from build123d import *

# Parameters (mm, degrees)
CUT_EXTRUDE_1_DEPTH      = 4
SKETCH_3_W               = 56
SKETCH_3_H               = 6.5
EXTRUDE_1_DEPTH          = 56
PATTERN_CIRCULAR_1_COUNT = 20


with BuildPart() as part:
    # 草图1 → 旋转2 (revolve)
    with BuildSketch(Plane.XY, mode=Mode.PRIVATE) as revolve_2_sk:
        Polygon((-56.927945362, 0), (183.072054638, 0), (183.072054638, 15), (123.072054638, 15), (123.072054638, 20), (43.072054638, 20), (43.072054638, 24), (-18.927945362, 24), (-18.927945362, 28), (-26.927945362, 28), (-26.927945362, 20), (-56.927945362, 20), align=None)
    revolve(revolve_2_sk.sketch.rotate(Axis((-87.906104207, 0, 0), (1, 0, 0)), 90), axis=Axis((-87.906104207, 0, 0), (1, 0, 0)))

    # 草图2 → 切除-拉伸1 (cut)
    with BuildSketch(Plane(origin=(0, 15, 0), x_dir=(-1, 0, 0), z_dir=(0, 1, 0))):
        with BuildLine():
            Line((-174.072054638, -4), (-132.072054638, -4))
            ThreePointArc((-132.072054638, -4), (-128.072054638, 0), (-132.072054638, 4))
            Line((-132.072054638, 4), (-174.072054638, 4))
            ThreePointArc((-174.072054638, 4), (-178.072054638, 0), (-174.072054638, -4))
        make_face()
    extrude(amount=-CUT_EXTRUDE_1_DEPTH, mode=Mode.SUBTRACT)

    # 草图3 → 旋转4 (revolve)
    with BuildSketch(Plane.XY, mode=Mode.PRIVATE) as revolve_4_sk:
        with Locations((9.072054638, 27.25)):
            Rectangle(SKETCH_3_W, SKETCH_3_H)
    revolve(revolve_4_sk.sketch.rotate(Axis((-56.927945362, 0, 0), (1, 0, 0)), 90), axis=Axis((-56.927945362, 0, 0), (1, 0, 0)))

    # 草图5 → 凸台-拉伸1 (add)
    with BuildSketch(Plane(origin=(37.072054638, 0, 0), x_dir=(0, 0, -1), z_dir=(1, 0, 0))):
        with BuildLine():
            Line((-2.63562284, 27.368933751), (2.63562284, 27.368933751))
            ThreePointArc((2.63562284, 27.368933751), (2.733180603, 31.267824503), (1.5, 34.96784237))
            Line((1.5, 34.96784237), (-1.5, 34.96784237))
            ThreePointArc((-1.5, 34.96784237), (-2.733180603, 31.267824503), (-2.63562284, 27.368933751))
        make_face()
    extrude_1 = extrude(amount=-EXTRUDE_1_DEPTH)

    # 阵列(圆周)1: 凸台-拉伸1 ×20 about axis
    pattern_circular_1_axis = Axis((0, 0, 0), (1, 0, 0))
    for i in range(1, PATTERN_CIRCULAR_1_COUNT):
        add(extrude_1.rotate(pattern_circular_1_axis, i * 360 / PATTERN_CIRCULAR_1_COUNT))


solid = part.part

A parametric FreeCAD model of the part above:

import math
import FreeCAD as App
import Part
import Sketcher
from FreeCAD import Vector

doc = App.newDocument("Part")
body = doc.addObject("PartDesign::Body", "Body")

# Sketch on XY plane
sketch1 = body.newObject("Sketcher::SketchObject", "Sketch")
sketch1.AttachmentSupport = (doc.getObject("XY_Plane"), [""])
sketch1.MapMode = "FlatFace"
sketch1.addGeometry(Part.LineSegment(Vector(-56.9, 0, 0), Vector(183.1, 0, 0)), False)
sketch1.addGeometry(Part.LineSegment(Vector(183.1, 0, 0), Vector(183.1, 15, 0)), False)
sketch1.addGeometry(Part.LineSegment(Vector(183.1, 15, 0), Vector(123.1, 15, 0)), False)
sketch1.addGeometry(Part.LineSegment(Vector(123.1, 15, 0), Vector(123.1, 20, 0)), False)
sketch1.addGeometry(Part.LineSegment(Vector(123.1, 20, 0), Vector(43.1, 20, 0)), False)
sketch1.addGeometry(Part.LineSegment(Vector(43.1, 20, 0), Vector(43.1, 24, 0)), False)
sketch1.addGeometry(Part.LineSegment(Vector(43.1, 24, 0), Vector(-18.9, 24, 0)), False)
sketch1.addGeometry(Part.LineSegment(Vector(-18.9, 24, 0), Vector(-18.9, 28, 0)), False)
sketch1.addGeometry(Part.LineSegment(Vector(-18.9, 28, 0), Vector(-26.9, 28, 0)), False)
sketch1.addGeometry(Part.LineSegment(Vector(-26.9, 28, 0), Vector(-26.9, 20, 0)), False)
sketch1.addGeometry(Part.LineSegment(Vector(-26.9, 20, 0), Vector(-56.9, 20, 0)), False)
sketch1.addGeometry(Part.LineSegment(Vector(-56.9, 20, 0), Vector(-56.9, 0, 0)), False)
sketch1.addConstraint(Sketcher.Constraint("Coincident", 0, 2, 1, 1))
sketch1.addConstraint(Sketcher.Constraint("Coincident", 1, 2, 2, 1))
sketch1.addConstraint(Sketcher.Constraint("Coincident", 2, 2, 3, 1))
sketch1.addConstraint(Sketcher.Constraint("Coincident", 3, 2, 4, 1))
sketch1.addConstraint(Sketcher.Constraint("Coincident", 4, 2, 5, 1))
sketch1.addConstraint(Sketcher.Constraint("Coincident", 5, 2, 6, 1))
sketch1.addConstraint(Sketcher.Constraint("Coincident", 6, 2, 7, 1))
sketch1.addConstraint(Sketcher.Constraint("Coincident", 7, 2, 8, 1))
sketch1.addConstraint(Sketcher.Constraint("Coincident", 8, 2, 9, 1))
sketch1.addConstraint(Sketcher.Constraint("Coincident", 9, 2, 10, 1))
sketch1.addConstraint(Sketcher.Constraint("Coincident", 10, 2, 11, 1))
sketch1.addConstraint(Sketcher.Constraint("Coincident", 11, 2, 0, 1))
sketch1.addConstraint(Sketcher.Constraint("Horizontal", 0))
sketch1.addConstraint(Sketcher.Constraint("Vertical", 1))
sketch1.addConstraint(Sketcher.Constraint("Horizontal", 2))
sketch1.addConstraint(Sketcher.Constraint("Vertical", 3))
sketch1.addConstraint(Sketcher.Constraint("Horizontal", 4))
sketch1.addConstraint(Sketcher.Constraint("Vertical", 5))
sketch1.addConstraint(Sketcher.Constraint("Horizontal", 6))
sketch1.addConstraint(Sketcher.Constraint("Vertical", 7))
sketch1.addConstraint(Sketcher.Constraint("Horizontal", 8))
sketch1.addConstraint(Sketcher.Constraint("Vertical", 9))
sketch1.addConstraint(Sketcher.Constraint("Horizontal", 10))
sketch1.addConstraint(Sketcher.Constraint("Vertical", 11))
sketch1.addConstraint(Sketcher.Constraint("PointOnObject", 0, 2, -1))
sketch1.addConstraint(Sketcher.Constraint("Horizontal", 4, 2, 9, 2))
sketch1.addConstraint(Sketcher.Constraint("Equal", 5, 7))
sketch1.addConstraint(Sketcher.Constraint("Equal", 8, 9))
sketch1.addConstraint(Sketcher.Constraint("DistanceX", 0, 1, 0, 2, 240.0))
sketch1.addConstraint(Sketcher.Constraint("DistanceX", 2, 2, 2, 1, 60.0))
sketch1.addConstraint(Sketcher.Constraint("DistanceX", 4, 2, 4, 1, 80.0))
sketch1.addConstraint(Sketcher.Constraint("DistanceX", 6, 2, 6, 1, 62.0))
sketch1.addConstraint(Sketcher.Constraint("DistanceX", 8, 2, 8, 1, 8.0))
sketch1.addConstraint(Sketcher.Constraint("DistanceY", 1, 1, 1, 2, 15.0))
sketch1.addConstraint(Sketcher.Constraint("DistanceY", 3, 1, 3, 2, 5.0))
sketch1.addConstraint(Sketcher.Constraint("DistanceX", -1, 1, 0, 2, 183.072055))
revolution = body.newObject("PartDesign::Revolution", "Revolution")
revolution.Profile = sketch1
revolution.ReferenceAxis = (sketch1, ["H_Axis"])
revolution.Angle = 360

# Sketch on XZ plane
sketch2 = body.newObject("Sketcher::SketchObject", "Sketch001")
sketch2.AttachmentSupport = (doc.getObject("XZ_Plane"), [""])
sketch2.MapMode = "FlatFace"
sketch2.AttachmentOffset = App.Placement(Vector(0, 0, -15), App.Rotation())
sketch2.addGeometry(Part.LineSegment(Vector(174.1, -4, 0), Vector(132.1, -4, 0)), False)
sketch2.addGeometry(Part.ArcOfCircle(Part.Circle(Vector(132.1, 0, 0), Vector(0, 0, 1), 4), math.radians(90), math.radians(270)), False)
sketch2.addGeometry(Part.LineSegment(Vector(132.1, 4, 0), Vector(174.1, 4, 0)), False)
sketch2.addGeometry(Part.ArcOfCircle(Part.Circle(Vector(174.1, 0, 0), Vector(0, 0, 1), 4), math.radians(-90), math.radians(90)), False)
sketch2.addConstraint(Sketcher.Constraint("Tangent", 0, 2, 1, 2))
sketch2.addConstraint(Sketcher.Constraint("Tangent", 1, 1, 2, 1))
sketch2.addConstraint(Sketcher.Constraint("Tangent", 2, 2, 3, 2))
sketch2.addConstraint(Sketcher.Constraint("Tangent", 3, 1, 0, 1))
sketch2.addConstraint(Sketcher.Constraint("Horizontal", 0))
sketch2.addConstraint(Sketcher.Constraint("Horizontal", 2))
sketch2.addConstraint(Sketcher.Constraint("PointOnObject", 1, 3, -1))
sketch2.addConstraint(Sketcher.Constraint("Radius", 1, 4.0))
sketch2.addConstraint(Sketcher.Constraint("DistanceX", 0, 2, 0, 1, 42.0))
sketch2.addConstraint(Sketcher.Constraint("DistanceX", -1, 1, 1, 3, 132.072055))
pocket1 = body.newObject("PartDesign::Pocket", "Pocket")
pocket1.Profile = sketch2
pocket1.Length = 4
pocket1.Reversed = True

# Sketch on XY plane
sketch3 = body.newObject("Sketcher::SketchObject", "Sketch002")
sketch3.AttachmentSupport = (doc.getObject("XY_Plane"), [""])
sketch3.MapMode = "FlatFace"
sketch3.addGeometry(Part.LineSegment(Vector(-19, 30, 0), Vector(-19, 24, 0)), False)
sketch3.addGeometry(Part.LineSegment(Vector(-19, 24, 0), Vector(37, 24, 0)), False)
sketch3.addGeometry(Part.LineSegment(Vector(37, 24, 0), Vector(37, 30, 0)), False)
sketch3.addGeometry(Part.LineSegment(Vector(37, 30, 0), Vector(-19, 30, 0)), False)
sketch3.addConstraint(Sketcher.Constraint("Coincident", 0, 2, 1, 1))
sketch3.addConstraint(Sketcher.Constraint("Coincident", 1, 2, 2, 1))
sketch3.addConstraint(Sketcher.Constraint("Coincident", 2, 2, 3, 1))
sketch3.addConstraint(Sketcher.Constraint("Coincident", 3, 2, 0, 1))
sketch3.addConstraint(Sketcher.Constraint("Vertical", 0))
sketch3.addConstraint(Sketcher.Constraint("Horizontal", 1))
sketch3.addConstraint(Sketcher.Constraint("Vertical", 2))
sketch3.addConstraint(Sketcher.Constraint("Horizontal", 3))
sketch3.addConstraint(Sketcher.Constraint("DistanceX", 1, 1, 1, 2, 56.0))
sketch3.addConstraint(Sketcher.Constraint("DistanceY", 0, 2, 0, 1, 6.5))
sketch3.addConstraint(Sketcher.Constraint("DistanceY", -1, 1, 0, 2, 24.0))
sketch3.addConstraint(Sketcher.Constraint("DistanceX", 0, 2, -1, 1, 18.927945))
revolution2 = body.newObject("PartDesign::Revolution", "Revolution001")
revolution2.Profile = sketch3
revolution2.ReferenceAxis = (sketch3, ["H_Axis"])
revolution2.Angle = 360

# Sketch on YZ plane
sketch4 = body.newObject("Sketcher::SketchObject", "Sketch003")
sketch4.AttachmentSupport = (doc.getObject("YZ_Plane"), [""])
sketch4.MapMode = "FlatFace"
sketch4.AttachmentOffset = App.Placement(Vector(0, 0, 37.072055), App.Rotation())
sketch4.addGeometry(Part.LineSegment(Vector(27.4, 2.6, 0), Vector(27.4, -2.6, 0)), False)
sketch4.addGeometry(Part.ArcOfCircle(Part.Circle(Vector(29.6, 8.4, 0), Vector(0, 0, 1), 11.3), math.radians(-101), math.radians(-62)), False)
sketch4.addGeometry(Part.LineSegment(Vector(35, -1.5, 0), Vector(35, 1.5, 0)), False)
sketch4.addGeometry(Part.ArcOfCircle(Part.Circle(Vector(29.6, -8.4, 0), Vector(0, 0, 1), 11.3), math.radians(62), math.radians(101)), False)
sketch4.addConstraint(Sketcher.Constraint("Coincident", 0, 2, 1, 1))
sketch4.addConstraint(Sketcher.Constraint("Coincident", 1, 2, 2, 1))
sketch4.addConstraint(Sketcher.Constraint("Coincident", 2, 2, 3, 1))
sketch4.addConstraint(Sketcher.Constraint("Coincident", 3, 2, 0, 1))
sketch4.addConstraint(Sketcher.Constraint("Vertical", 0))
sketch4.addConstraint(Sketcher.Constraint("Vertical", 2))
sketch4.addConstraint(Sketcher.Constraint("Equal", 1, 3))
sketch4.addConstraint(Sketcher.Constraint("Symmetric", 1, 3, 3, 3, -1))
sketch4.addConstraint(Sketcher.Constraint("DistanceY", 2, 1, 2, 2, 3.0))
sketch4.addConstraint(Sketcher.Constraint("Radius", 1, 11.304852))
sketch4.addConstraint(Sketcher.Constraint("DistanceY", 0, 2, 0, 1, 5.271246))
sketch4.addConstraint(Sketcher.Constraint("DistanceX", -1, 1, 1, 3, 29.596921))
sketch4.addConstraint(Sketcher.Constraint("DistanceY", 0, 2, 1, 3, 11.083129))
pad1 = body.newObject("PartDesign::Pad", "Pad")
pad1.Profile = sketch4
pad1.Length = 56
pad1.Reversed = True
doc.recompute()

polarpattern = body.newObject("PartDesign::PolarPattern", "PolarPattern")
polarpattern.Originals = [pad1]
polarpattern.Axis = (doc.getObject("X_Axis"), [""])
polarpattern.Angle = 360
polarpattern.Occurrences = 20
body.Tip = polarpattern

doc.recompute()
